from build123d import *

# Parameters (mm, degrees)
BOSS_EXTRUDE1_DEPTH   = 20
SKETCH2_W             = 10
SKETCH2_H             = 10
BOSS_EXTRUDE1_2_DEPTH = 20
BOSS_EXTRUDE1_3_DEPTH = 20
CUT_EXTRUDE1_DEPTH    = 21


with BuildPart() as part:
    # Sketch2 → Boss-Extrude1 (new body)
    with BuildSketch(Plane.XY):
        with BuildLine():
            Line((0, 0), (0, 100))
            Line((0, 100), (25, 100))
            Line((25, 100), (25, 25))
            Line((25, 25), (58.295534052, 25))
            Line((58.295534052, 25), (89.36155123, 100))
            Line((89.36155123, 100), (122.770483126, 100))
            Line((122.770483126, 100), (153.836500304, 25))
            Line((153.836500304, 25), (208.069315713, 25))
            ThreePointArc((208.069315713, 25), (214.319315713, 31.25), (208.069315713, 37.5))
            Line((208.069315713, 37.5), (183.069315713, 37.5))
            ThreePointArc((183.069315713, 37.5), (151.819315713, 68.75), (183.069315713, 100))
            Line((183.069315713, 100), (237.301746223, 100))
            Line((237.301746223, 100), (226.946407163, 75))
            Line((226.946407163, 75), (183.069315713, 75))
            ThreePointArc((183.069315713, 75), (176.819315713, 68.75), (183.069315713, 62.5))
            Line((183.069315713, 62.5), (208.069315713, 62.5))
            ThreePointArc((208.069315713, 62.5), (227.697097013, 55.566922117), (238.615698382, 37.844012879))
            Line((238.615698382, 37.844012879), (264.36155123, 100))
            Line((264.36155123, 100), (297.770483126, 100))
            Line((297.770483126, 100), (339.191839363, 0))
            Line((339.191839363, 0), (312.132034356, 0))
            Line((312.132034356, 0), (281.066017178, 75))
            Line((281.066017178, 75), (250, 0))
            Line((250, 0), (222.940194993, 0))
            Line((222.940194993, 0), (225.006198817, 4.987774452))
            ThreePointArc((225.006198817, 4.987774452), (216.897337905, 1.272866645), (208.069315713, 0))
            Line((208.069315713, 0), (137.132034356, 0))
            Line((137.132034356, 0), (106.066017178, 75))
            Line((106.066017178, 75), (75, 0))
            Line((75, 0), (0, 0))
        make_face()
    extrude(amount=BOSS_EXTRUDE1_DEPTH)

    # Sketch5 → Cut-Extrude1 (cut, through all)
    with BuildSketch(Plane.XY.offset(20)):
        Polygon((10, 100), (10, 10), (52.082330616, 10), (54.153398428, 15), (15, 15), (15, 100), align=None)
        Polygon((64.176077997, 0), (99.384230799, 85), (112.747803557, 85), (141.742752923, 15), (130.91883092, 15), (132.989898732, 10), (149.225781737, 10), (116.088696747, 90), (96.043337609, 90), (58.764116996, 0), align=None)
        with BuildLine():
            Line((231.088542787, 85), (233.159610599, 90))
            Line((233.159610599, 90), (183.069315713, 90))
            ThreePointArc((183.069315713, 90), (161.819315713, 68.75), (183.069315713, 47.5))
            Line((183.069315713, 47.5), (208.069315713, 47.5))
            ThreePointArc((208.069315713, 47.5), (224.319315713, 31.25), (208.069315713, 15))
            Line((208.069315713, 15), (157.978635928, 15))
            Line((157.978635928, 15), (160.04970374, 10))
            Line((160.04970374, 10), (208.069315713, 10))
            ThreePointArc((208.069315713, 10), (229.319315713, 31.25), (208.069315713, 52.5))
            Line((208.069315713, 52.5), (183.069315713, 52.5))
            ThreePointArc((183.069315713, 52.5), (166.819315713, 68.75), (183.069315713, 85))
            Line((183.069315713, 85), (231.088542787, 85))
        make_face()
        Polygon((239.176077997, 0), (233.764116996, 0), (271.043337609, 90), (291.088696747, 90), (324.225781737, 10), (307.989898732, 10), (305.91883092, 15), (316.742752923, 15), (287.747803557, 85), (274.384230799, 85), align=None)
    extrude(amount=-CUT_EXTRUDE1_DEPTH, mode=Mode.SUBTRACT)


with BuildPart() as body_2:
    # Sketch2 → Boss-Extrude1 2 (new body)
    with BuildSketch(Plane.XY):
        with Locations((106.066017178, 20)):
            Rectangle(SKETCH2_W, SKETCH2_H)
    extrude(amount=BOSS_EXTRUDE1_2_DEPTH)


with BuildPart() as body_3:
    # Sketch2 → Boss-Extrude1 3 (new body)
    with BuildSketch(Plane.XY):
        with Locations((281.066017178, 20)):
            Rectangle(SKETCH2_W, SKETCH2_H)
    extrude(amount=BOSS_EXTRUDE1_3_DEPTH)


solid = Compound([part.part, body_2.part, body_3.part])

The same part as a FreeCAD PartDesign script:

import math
import FreeCAD as App
import Part
import Sketcher
Q = App.Units.Quantity

doc = App.newDocument("Part")
body = doc.addObject("PartDesign::Body", "Body")
body.AllowCompound = True

sketch1 = doc.addObject("Sketcher::SketchObject", "Sketch")
body.addObject(sketch1)
sketch1.AttachmentSupport = (doc.XY_Plane, [""])
sketch1.MapMode = "FlatFace"
sketch1.addGeometry([
    Part.LineSegment(App.Vector(0, 100, 0), App.Vector(0, 0, 0)),
    Part.LineSegment(App.Vector(0, 0, 0), App.Vector(75, 0, 0)),
    Part.LineSegment(App.Vector(75, 0, 0), App.Vector(106, 75, 0)),
    Part.LineSegment(App.Vector(106, 75, 0), App.Vector(137, 0, 0)),
    Part.LineSegment(App.Vector(137, 0, 0), App.Vector(208, 0, 0)),
    Part.ArcOfCircle(Part.Circle(App.Vector(208, 31, 0), App.Vector(0, 0, 1), 31), math.radians(-90), math.radians(-57)),
    Part.LineSegment(App.Vector(225, 5, 0), App.Vector(223, 0, 0)),
    Part.LineSegment(App.Vector(223, 0, 0), App.Vector(250, 0, 0)),
    Part.LineSegment(App.Vector(250, 0, 0), App.Vector(281, 75, 0)),
    Part.LineSegment(App.Vector(281, 75, 0), App.Vector(312, 0, 0)),
    Part.LineSegment(App.Vector(312, 0, 0), App.Vector(339, 0, 0)),
    Part.LineSegment(App.Vector(339, 0, 0), App.Vector(298, 100, 0)),
    Part.LineSegment(App.Vector(298, 100, 0), App.Vector(264, 100, 0)),
    Part.LineSegment(App.Vector(264, 100, 0), App.Vector(239, 38, 0)),
    Part.ArcOfCircle(Part.Circle(App.Vector(208, 31, 0), App.Vector(0, 0, 1), 31), math.radians(12), math.radians(90)),
    Part.LineSegment(App.Vector(208, 62, 0), App.Vector(183, 62, 0)),
    Part.ArcOfCircle(Part.Circle(App.Vector(183, 69, 0), App.Vector(0, 0, 1), 6), math.radians(90), math.radians(270)),
    Part.LineSegment(App.Vector(183, 75, 0), App.Vector(227, 75, 0)),
    Part.LineSegment(App.Vector(227, 75, 0), App.Vector(237, 100, 0)),
    Part.LineSegment(App.Vector(237, 100, 0), App.Vector(183, 100, 0)),
    Part.ArcOfCircle(Part.Circle(App.Vector(183, 69, 0), App.Vector(0, 0, 1), 31), math.radians(90), math.radians(270)),
    Part.LineSegment(App.Vector(183, 38, 0), App.Vector(208, 38, 0)),
    Part.ArcOfCircle(Part.Circle(App.Vector(208, 31, 0), App.Vector(0, 0, 1), 6), math.radians(-90), math.radians(90)),
    Part.LineSegment(App.Vector(208, 25, 0), App.Vector(154, 25, 0)),
    Part.LineSegment(App.Vector(154, 25, 0), App.Vector(123, 100, 0)),
    Part.LineSegment(App.Vector(123, 100, 0), App.Vector(89, 100, 0)),
    Part.LineSegment(App.Vector(89, 100, 0), App.Vector(58, 25, 0)),
    Part.LineSegment(App.Vector(58, 25, 0), App.Vector(25, 25, 0)),
    Part.LineSegment(App.Vector(25, 25, 0), App.Vector(25, 100, 0)),
    Part.LineSegment(App.Vector(25, 100, 0), App.Vector(0, 100, 0)),
], False)
sketch1.addConstraint([
    Sketcher.Constraint("Coincident", 0, 2, 1, 1),
    Sketcher.Constraint("Coincident", 1, 2, 2, 1),
    Sketcher.Constraint("Coincident", 2, 2, 3, 1),
    Sketcher.Constraint("Coincident", 3, 2, 4, 1),
    Sketcher.Constraint("Tangent", 4, 2, 5, 1),
    Sketcher.Constraint("Coincident", 5, 2, 6, 1),
    Sketcher.Constraint("Coincident", 6, 2, 7, 1),
    Sketcher.Constraint("Coincident", 7, 2, 8, 1),
    Sketcher.Constraint("Coincident", 8, 2, 9, 1),
    Sketcher.Constraint("Coincident", 9, 2, 10, 1),
    Sketcher.Constraint("Coincident", 10, 2, 11, 1),
    Sketcher.Constraint("Coincident", 11, 2, 12, 1),
    Sketcher.Constraint("Coincident", 12, 2, 13, 1),
    Sketcher.Constraint("Coincident", 13, 2, 14, 1),
    Sketcher.Constraint("Tangent", 14, 2, 15, 1),
    Sketcher.Constraint("Tangent", 15, 2, 16, 2),
    Sketcher.Constraint("Tangent", 16, 1, 17, 1),
    Sketcher.Constraint("Coincident", 17, 2, 18, 1),
    Sketcher.Constraint("Coincident", 18, 2, 19, 1),
    Sketcher.Constraint("Tangent", 19, 2, 20, 1),
    Sketcher.Constraint("Tangent", 20, 2, 21, 1),
    Sketcher.Constraint("Tangent", 21, 2, 22, 2),
    Sketcher.Constraint("Tangent", 22, 1, 23, 1),
    Sketcher.Constraint("Coincident", 23, 2, 24, 1),
    Sketcher.Constraint("Coincident", 24, 2, 25, 1),
    Sketcher.Constraint("Coincident", 25, 2, 26, 1),
    Sketcher.Constraint("Coincident", 26, 2, 27, 1),
    Sketcher.Constraint("Coincident", 27, 2, 28, 1),
    Sketcher.Constraint("Coincident", 28, 2, 29, 1),
    Sketcher.Constraint("Coincident", 29, 2, 0, 1),
    Sketcher.Constraint("Vertical", 0),
    Sketcher.Constraint("Horizontal", 1),
    Sketcher.Constraint("Horizontal", 4),
    Sketcher.Constraint("Horizontal", 7),
    Sketcher.Constraint("Horizontal", 10),
    Sketcher.Constraint("Horizontal", 12),
    Sketcher.Constraint("Horizontal", 15),
    Sketcher.Constraint("Horizontal", 17),
    Sketcher.Constraint("Horizontal", 19),
    Sketcher.Constraint("Horizontal", 21),
    Sketcher.Constraint("Horizontal", 23),
    Sketcher.Constraint("Horizontal", 25),
    Sketcher.Constraint("Horizontal", 27),
    Sketcher.Constraint("Vertical", 28),
    Sketcher.Constraint("Horizontal", 29),
    Sketcher.Constraint("Coincident", 0, 2, -1, 1),
    Sketcher.Constraint("Coincident", 14, 3, 5, 3),
    Sketcher.Constraint("Coincident", 20, 3, 16, 3),
    Sketcher.Constraint("Coincident", 22, 3, 5, 3),
    Sketcher.Constraint("Equal", 5, 14),
    Sketcher.Constraint("Equal", 14, 20),
    Sketcher.Constraint("PointOnObject", 3, 2, -1),
    Sketcher.Constraint("PointOnObject", 6, 2, -1),
    Sketcher.Constraint("PointOnObject", 9, 2, -1),
    Sketcher.Constraint("Parallel", 2, 6),
    Sketcher.Constraint("Parallel", 6, 8),
    Sketcher.Constraint("Parallel", 3, 9),
    Sketcher.Constraint("Parallel", 9, 11),
    Sketcher.Constraint("Parallel", 8, 13),
    Sketcher.Constraint("Parallel", 13, 18),
    Sketcher.Constraint("Parallel", 11, 24),
    Sketcher.Constraint("Parallel", 18, 26),
    Sketcher.Constraint("Horizontal", 2, 2, 8, 2),
    Sketcher.Constraint("Horizontal", 8, 2, 16, 1),
    Sketcher.Constraint("Horizontal", 12, 2, 18, 2),
    Sketcher.Constraint("Horizontal", 19, 2, 24, 2),
    Sketcher.Constraint("Horizontal", 23, 2, 26, 2),
    Sketcher.Constraint("Horizontal", 25, 2, 28, 2),
    Sketcher.Constraint("Equal", 7, 10),
    Sketcher.Constraint("Equal", 12, 25),
    Sketcher.Constraint("Equal", 21, 29),
    Sketcher.Constraint("Equal", 1, 28),
    Sketcher.Constraint("Equal", 2, 3),
    Sketcher.Constraint("DistanceX", 1, 1, 1, 2, Q("75 mm")),
    Sketcher.Constraint("DistanceX", 15, 2, 15, 1, Q("25 mm")),
    Sketcher.Constraint("DistanceY", 0, 2, 0, 1, Q("100 mm")),
    Sketcher.Constraint("DistanceX", -1, 1, 7, 2, Q("250 mm")),
    Sketcher.Constraint("Angle", 2, Q("67.5 deg")),
    Sketcher.Constraint("DistanceX", 4, 1, 4, 2, Q("70.937281 mm")),
    Sketcher.Constraint("DistanceX", 12, 2, 12, 1, Q("33.408932 mm")),
    Sketcher.Constraint("DistanceX", 17, 1, 17, 2, Q("43.877091 mm")),
    Sketcher.Constraint("DistanceX", -1, 1, 5, 2, Q("225.006199 mm")),
    Sketcher.Constraint("DistanceX", -1, 1, 23, 2, Q("153.8365 mm")),
])
pad1 = doc.addObject("PartDesign::Pad", "Pad")
body.addObject(pad1)
pad1.Profile = sketch1
pad1.Length = 20

sketch2 = doc.addObject("Sketcher::SketchObject", "Sketch001")
body.addObject(sketch2)
sketch2.AttachmentSupport = (doc.XY_Plane, [""])
sketch2.MapMode = "FlatFace"
sketch2.AttachmentOffset = App.Placement(App.Vector(0, 0, 20), App.Rotation())
sketch2.addGeometry([
    Part.LineSegment(App.Vector(10, 100, 0), App.Vector(10, 10, 0)),
    Part.LineSegment(App.Vector(10, 10, 0), App.Vector(52, 10, 0)),
    Part.LineSegment(App.Vector(52, 10, 0), App.Vector(54, 15, 0)),
    Part.LineSegment(App.Vector(54, 15, 0), App.Vector(15, 15, 0)),
    Part.LineSegment(App.Vector(15, 15, 0), App.Vector(15, 100, 0)),
    Part.LineSegment(App.Vector(15, 100, 0), App.Vector(10, 100, 0)),
    Part.LineSegment(App.Vector(64, 0, 0), App.Vector(99, 85, 0)),
    Part.LineSegment(App.Vector(99, 85, 0), App.Vector(113, 85, 0)),
    Part.LineSegment(App.Vector(113, 85, 0), App.Vector(142, 15, 0)),
    Part.LineSegment(App.Vector(142, 15, 0), App.Vector(131, 15, 0)),
    Part.LineSegment(App.Vector(131, 15, 0), App.Vector(133, 10, 0)),
    Part.LineSegment(App.Vector(133, 10, 0), App.Vector(149, 10, 0)),
    Part.LineSegment(App.Vector(149, 10, 0), App.Vector(116, 90, 0)),
    Part.LineSegment(App.Vector(116, 90, 0), App.Vector(96, 90, 0)),
    Part.LineSegment(App.Vector(96, 90, 0), App.Vector(59, 0, 0)),
    Part.LineSegment(App.Vector(59, 0, 0), App.Vector(64, 0, 0)),
    Part.LineSegment(App.Vector(231, 85, 0), App.Vector(233, 90, 0)),
    Part.LineSegment(App.Vector(233, 90, 0), App.Vector(183, 90, 0)),
    Part.ArcOfCircle(Part.Circle(App.Vector(183, 69, 0), App.Vector(0, 0, 1), 21), math.radians(90), math.radians(270)),
    Part.LineSegment(App.Vector(183, 48, 0), App.Vector(208, 48, 0)),
    Part.ArcOfCircle(Part.Circle(App.Vector(208, 31, 0), App.Vector(0, 0, 1), 16), math.radians(-90), math.radians(90)),
    Part.LineSegment(App.Vector(208, 15, 0), App.Vector(158, 15, 0)),
    Part.LineSegment(App.Vector(158, 15, 0), App.Vector(160, 10, 0)),
    Part.LineSegment(App.Vector(160, 10, 0), App.Vector(208, 10, 0)),
    Part.ArcOfCircle(Part.Circle(App.Vector(208, 31, 0), App.Vector(0, 0, 1), 21), math.radians(-90), math.radians(90)),
    Part.LineSegment(App.Vector(208, 52, 0), App.Vector(183, 52, 0)),
    Part.ArcOfCircle(Part.Circle(App.Vector(183, 69, 0), App.Vector(0, 0, 1), 16), math.radians(90), math.radians(270)),
    Part.LineSegment(App.Vector(183, 85, 0), App.Vector(231, 85, 0)),
    Part.LineSegment(App.Vector(234, 0, 0), App.Vector(239, 0, 0)),
    Part.LineSegment(App.Vector(239, 0, 0), App.Vector(274, 85, 0)),
    Part.LineSegment(App.Vector(274, 85, 0), App.Vector(288, 85, 0)),
    Part.LineSegment(App.Vector(288, 85, 0), App.Vector(317, 15, 0)),
    Part.LineSegment(App.Vector(317, 15, 0), App.Vector(306, 15, 0)),
    Part.LineSegment(App.Vector(306, 15, 0), App.Vector(308, 10, 0)),
    Part.LineSegment(App.Vector(308, 10, 0), App.Vector(324, 10, 0)),
    Part.LineSegment(App.Vector(324, 10, 0), App.Vector(291, 90, 0)),
    Part.LineSegment(App.Vector(291, 90, 0), App.Vector(271, 90, 0)),
    Part.LineSegment(App.Vector(271, 90, 0), App.Vector(234, 0, 0)),
], False)
sketch2.addConstraint([
    Sketcher.Constraint("Coincident", 0, 2, 1, 1),
    Sketcher.Constraint("Coincident", 1, 2, 2, 1),
    Sketcher.Constraint("Coincident", 2, 2, 3, 1),
    Sketcher.Constraint("Coincident", 3, 2, 4, 1),
    Sketcher.Constraint("Coincident", 4, 2, 5, 1),
    Sketcher.Constraint("Coincident", 5, 2, 0, 1),
    Sketcher.Constraint("Coincident", 6, 2, 7, 1),
    Sketcher.Constraint("Coincident", 7, 2, 8, 1),
    Sketcher.Constraint("Coincident", 8, 2, 9, 1),
    Sketcher.Constraint("Coincident", 9, 2, 10, 1),
    Sketcher.Constraint("Coincident", 10, 2, 11, 1),
    Sketcher.Constraint("Coincident", 11, 2, 12, 1),
    Sketcher.Constraint("Coincident", 12, 2, 13, 1),
    Sketcher.Constraint("Coincident", 13, 2, 14, 1),
    Sketcher.Constraint("Coincident", 14, 2, 15, 1),
    Sketcher.Constraint("Coincident", 15, 2, 6, 1),
    Sketcher.Constraint("Coincident", 16, 2, 17, 1),
    Sketcher.Constraint("Tangent", 17, 2, 18, 1),
    Sketcher.Constraint("Tangent", 18, 2, 19, 1),
    Sketcher.Constraint("Tangent", 19, 2, 20, 2),
    Sketcher.Constraint("Tangent", 20, 1, 21, 1),
    Sketcher.Constraint("Coincident", 21, 2, 22, 1),
    Sketcher.Constraint("Coincident", 22, 2, 23, 1),
    Sketcher.Constraint("Tangent", 23, 2, 24, 1),
    Sketcher.Constraint("Tangent", 24, 2, 25, 1),
    Sketcher.Constraint("Tangent", 25, 2, 26, 2),
    Sketcher.Constraint("Tangent", 26, 1, 27, 1),
    Sketcher.Constraint("Coincident", 27, 2, 16, 1),
    Sketcher.Constraint("Coincident", 28, 2, 29, 1),
    Sketcher.Constraint("Coincident", 29, 2, 30, 1),
    Sketcher.Constraint("Coincident", 30, 2, 31, 1),
    Sketcher.Constraint("Coincident", 31, 2, 32, 1),
    Sketcher.Constraint("Coincident", 32, 2, 33, 1),
    Sketcher.Constraint("Coincident", 33, 2, 34, 1),
    Sketcher.Constraint("Coincident", 34, 2, 35, 1),
    Sketcher.Constraint("Coincident", 35, 2, 36, 1),
    Sketcher.Constraint("Coincident", 36, 2, 37, 1),
    Sketcher.Constraint("Coincident", 37, 2, 28, 1),
    Sketcher.Constraint("Vertical", 0),
    Sketcher.Constraint("Horizontal", 1),
    Sketcher.Constraint("Horizontal", 3),
    Sketcher.Constraint("Vertical", 4),
    Sketcher.Constraint("Horizontal", 5),
    Sketcher.Constraint("Horizontal", 7),
    Sketcher.Constraint("Horizontal", 9),
    Sketcher.Constraint("Horizontal", 11),
    Sketcher.Constraint("Horizontal", 13),
    Sketcher.Constraint("Horizontal", 15),
    Sketcher.Constraint("Horizontal", 17),
    Sketcher.Constraint("Horizontal", 19),
    Sketcher.Constraint("Horizontal", 21),
    Sketcher.Constraint("Horizontal", 23),
    Sketcher.Constraint("Horizontal", 25),
    Sketcher.Constraint("Horizontal", 27),
    Sketcher.Constraint("Horizontal", 28),
    Sketcher.Constraint("Horizontal", 30),
    Sketcher.Constraint("Horizontal", 32),
    Sketcher.Constraint("Horizontal", 34),
    Sketcher.Constraint("Horizontal", 36),
    Sketcher.Constraint("Coincident", 24, 3, 20, 3),
    Sketcher.Constraint("Coincident", 26, 3, 18, 3),
    Sketcher.Constraint("Equal", 18, 24),
    Sketcher.Constraint("PointOnObject", 14, 2, -1),
    Sketcher.Constraint("PointOnObject", 28, 2, -1),
    Sketcher.Constraint("Parallel", 2, 6),
    Sketcher.Constraint("Parallel", 8, 10),
    Sketcher.Constraint("Parallel", 10, 12),
    Sketcher.Constraint("Parallel", 6, 14),
    Sketcher.Constraint("Parallel", 14, 16),
    Sketcher.Constraint("Parallel", 12, 22),
    Sketcher.Constraint("Parallel", 16, 29),
    Sketcher.Constraint("Parallel", 22, 31),
    Sketcher.Constraint("Parallel", 31, 33),
    Sketcher.Constraint("Parallel", 33, 35),
    Sketcher.Constraint("Parallel", 29, 37),
    Sketcher.Constraint("Horizontal", 3, 2, 8, 2),
    Sketcher.Constraint("Horizontal", 1, 2, 10, 2),
    Sketcher.Constraint("Horizontal", 13, 2, 16, 2),
    Sketcher.Constraint("Horizontal", 9, 2, 20, 1),
    Sketcher.Constraint("Horizontal", 11, 2, 22, 2),
    Sketcher.Constraint("Horizontal", 7, 2, 26, 1),
    Sketcher.Constraint("Horizontal", 27, 2, 29, 2),
    Sketcher.Constraint("Horizontal", 21, 2, 31, 2),
    Sketcher.Constraint("Horizontal", 23, 2, 33, 2),
    Sketcher.Constraint("Horizontal", 17, 2, 35, 2),
    Sketcher.Constraint("Equal", 15, 28),
    Sketcher.Constraint("Equal", 7, 30),
    Sketcher.Constraint("Equal", 9, 32),
    Sketcher.Constraint("Equal", 11, 34),
    Sketcher.Constraint("Equal", 2, 10),
    Sketcher.Constraint("DistanceX", 5, 2, 5, 1, Q("5 mm")),
    Sketcher.Constraint("DistanceX", 19, 1, 19, 2, Q("25 mm")),
    Sketcher.Constraint("DistanceY", 0, 2, 0, 1, Q("90 mm")),
    Sketcher.Constraint("DistanceY", 4, 1, 4, 2, Q("85 mm")),
    Sketcher.Constraint("Radius", 18, Q("21.25 mm")),
    Sketcher.Constraint("DistanceX", -1, 1, 0, 2, Q("10 mm")),
    Sketcher.Constraint("DistanceY", -1, 1, 0, 2, Q("10 mm")),
    Sketcher.Constraint("Angle", 2, Q("67.5 deg")),
    Sketcher.Constraint("DistanceX", 3, 2, 3, 1, Q("39.153398 mm")),
    Sketcher.Constraint("DistanceX", 13, 2, 13, 1, Q("20.045359 mm")),
    Sketcher.Constraint("DistanceX", 15, 1, 15, 2, Q("5.411961 mm")),
    Sketcher.Constraint("DistanceX", 21, 2, 21, 1, Q("50.09068 mm")),
    Sketcher.Constraint("DistanceX", -1, 1, 10, 2, Q("132.989899 mm")),
    Sketcher.Constraint("DistanceX", -1, 1, 33, 2, Q("307.989899 mm")),
    Sketcher.Constraint("DistanceX", 1, 2, 6, 2, Q("47.3019 mm")),
    Sketcher.Constraint("DistanceX", 23, 2, 37, 2, Q("25.694801 mm")),
    Sketcher.Constraint("DistanceX", 7, 1, 7, 2, Q("13.363573 mm")),
    Sketcher.Constraint("DistanceX", 17, 2, 17, 1, Q("50.090295 mm")),
])
pocket1 = doc.addObject("PartDesign::Pocket", "Pocket")
body.addObject(pocket1)
pocket1.Profile = sketch2
pocket1.Type = "ThroughAll"
body2 = doc.addObject("PartDesign::Body", "Body001")

sketch3 = doc.addObject("Sketcher::SketchObject", "Sketch002")
body2.addObject(sketch3)
sketch3.AttachmentSupport = (doc.getObject("XY_Plane001"), [""])
sketch3.MapMode = "FlatFace"
sketch3.addGeometry([
    Part.LineSegment(App.Vector(101, 25, 0), App.Vector(101, 15, 0)),
    Part.LineSegment(App.Vector(101, 15, 0), App.Vector(111, 15, 0)),
    Part.LineSegment(App.Vector(111, 15, 0), App.Vector(111, 25, 0)),
    Part.LineSegment(App.Vector(111, 25, 0), App.Vector(101, 25, 0)),
], False)
sketch3.addConstraint([
    Sketcher.Constraint("Coincident", 0, 2, 1, 1),
    Sketcher.Constraint("Coincident", 1, 2, 2, 1),
    Sketcher.Constraint("Coincident", 2, 2, 3, 1),
    Sketcher.Constraint("Coincident", 3, 2, 0, 1),
    Sketcher.Constraint("Vertical", 0),
    Sketcher.Constraint("Horizontal", 1),
    Sketcher.Constraint("Vertical", 2),
    Sketcher.Constraint("Horizontal", 3),
    Sketcher.Constraint("Equal", 3, 0),
    Sketcher.Constraint("DistanceX", 1, 1, 1, 2, Q("10 mm")),
    Sketcher.Constraint("DistanceY", -1, 1, 0, 2, Q("15 mm")),
    Sketcher.Constraint("DistanceX", -1, 1, 0, 2, Q("101.066017 mm")),
])
pad2 = doc.addObject("PartDesign::Pad", "Pad001")
body2.addObject(pad2)
pad2.Profile = sketch3
pad2.Length = 20
body3 = doc.addObject("PartDesign::Body", "Body002")

sketch4 = doc.addObject("Sketcher::SketchObject", "Sketch003")
body3.addObject(sketch4)
sketch4.AttachmentSupport = (doc.getObject("XY_Plane002"), [""])
sketch4.MapMode = "FlatFace"
sketch4.addGeometry([
    Part.LineSegment(App.Vector(276, 25, 0), App.Vector(276, 15, 0)),
    Part.LineSegment(App.Vector(276, 15, 0), App.Vector(286, 15, 0)),
    Part.LineSegment(App.Vector(286, 15, 0), App.Vector(286, 25, 0)),
    Part.LineSegment(App.Vector(286, 25, 0), App.Vector(276, 25, 0)),
], False)
sketch4.addConstraint([
    Sketcher.Constraint("Coincident", 0, 2, 1, 1),
    Sketcher.Constraint("Coincident", 1, 2, 2, 1),
    Sketcher.Constraint("Coincident", 2, 2, 3, 1),
    Sketcher.Constraint("Coincident", 3, 2, 0, 1),
    Sketcher.Constraint("Vertical", 0),
    Sketcher.Constraint("Horizontal", 1),
    Sketcher.Constraint("Vertical", 2),
    Sketcher.Constraint("Horizontal", 3),
    Sketcher.Constraint("Equal", 3, 0),
    Sketcher.Constraint("DistanceX", 1, 1, 1, 2, Q("10 mm")),
    Sketcher.Constraint("DistanceY", -1, 1, 0, 2, Q("15 mm")),
    Sketcher.Constraint("DistanceX", -1, 1, 0, 2, Q("276.066017 mm")),
])
pad3 = doc.addObject("PartDesign::Pad", "Pad002")
body3.addObject(pad3)
pad3.Profile = sketch4
pad3.Length = 20

doc.recompute()
